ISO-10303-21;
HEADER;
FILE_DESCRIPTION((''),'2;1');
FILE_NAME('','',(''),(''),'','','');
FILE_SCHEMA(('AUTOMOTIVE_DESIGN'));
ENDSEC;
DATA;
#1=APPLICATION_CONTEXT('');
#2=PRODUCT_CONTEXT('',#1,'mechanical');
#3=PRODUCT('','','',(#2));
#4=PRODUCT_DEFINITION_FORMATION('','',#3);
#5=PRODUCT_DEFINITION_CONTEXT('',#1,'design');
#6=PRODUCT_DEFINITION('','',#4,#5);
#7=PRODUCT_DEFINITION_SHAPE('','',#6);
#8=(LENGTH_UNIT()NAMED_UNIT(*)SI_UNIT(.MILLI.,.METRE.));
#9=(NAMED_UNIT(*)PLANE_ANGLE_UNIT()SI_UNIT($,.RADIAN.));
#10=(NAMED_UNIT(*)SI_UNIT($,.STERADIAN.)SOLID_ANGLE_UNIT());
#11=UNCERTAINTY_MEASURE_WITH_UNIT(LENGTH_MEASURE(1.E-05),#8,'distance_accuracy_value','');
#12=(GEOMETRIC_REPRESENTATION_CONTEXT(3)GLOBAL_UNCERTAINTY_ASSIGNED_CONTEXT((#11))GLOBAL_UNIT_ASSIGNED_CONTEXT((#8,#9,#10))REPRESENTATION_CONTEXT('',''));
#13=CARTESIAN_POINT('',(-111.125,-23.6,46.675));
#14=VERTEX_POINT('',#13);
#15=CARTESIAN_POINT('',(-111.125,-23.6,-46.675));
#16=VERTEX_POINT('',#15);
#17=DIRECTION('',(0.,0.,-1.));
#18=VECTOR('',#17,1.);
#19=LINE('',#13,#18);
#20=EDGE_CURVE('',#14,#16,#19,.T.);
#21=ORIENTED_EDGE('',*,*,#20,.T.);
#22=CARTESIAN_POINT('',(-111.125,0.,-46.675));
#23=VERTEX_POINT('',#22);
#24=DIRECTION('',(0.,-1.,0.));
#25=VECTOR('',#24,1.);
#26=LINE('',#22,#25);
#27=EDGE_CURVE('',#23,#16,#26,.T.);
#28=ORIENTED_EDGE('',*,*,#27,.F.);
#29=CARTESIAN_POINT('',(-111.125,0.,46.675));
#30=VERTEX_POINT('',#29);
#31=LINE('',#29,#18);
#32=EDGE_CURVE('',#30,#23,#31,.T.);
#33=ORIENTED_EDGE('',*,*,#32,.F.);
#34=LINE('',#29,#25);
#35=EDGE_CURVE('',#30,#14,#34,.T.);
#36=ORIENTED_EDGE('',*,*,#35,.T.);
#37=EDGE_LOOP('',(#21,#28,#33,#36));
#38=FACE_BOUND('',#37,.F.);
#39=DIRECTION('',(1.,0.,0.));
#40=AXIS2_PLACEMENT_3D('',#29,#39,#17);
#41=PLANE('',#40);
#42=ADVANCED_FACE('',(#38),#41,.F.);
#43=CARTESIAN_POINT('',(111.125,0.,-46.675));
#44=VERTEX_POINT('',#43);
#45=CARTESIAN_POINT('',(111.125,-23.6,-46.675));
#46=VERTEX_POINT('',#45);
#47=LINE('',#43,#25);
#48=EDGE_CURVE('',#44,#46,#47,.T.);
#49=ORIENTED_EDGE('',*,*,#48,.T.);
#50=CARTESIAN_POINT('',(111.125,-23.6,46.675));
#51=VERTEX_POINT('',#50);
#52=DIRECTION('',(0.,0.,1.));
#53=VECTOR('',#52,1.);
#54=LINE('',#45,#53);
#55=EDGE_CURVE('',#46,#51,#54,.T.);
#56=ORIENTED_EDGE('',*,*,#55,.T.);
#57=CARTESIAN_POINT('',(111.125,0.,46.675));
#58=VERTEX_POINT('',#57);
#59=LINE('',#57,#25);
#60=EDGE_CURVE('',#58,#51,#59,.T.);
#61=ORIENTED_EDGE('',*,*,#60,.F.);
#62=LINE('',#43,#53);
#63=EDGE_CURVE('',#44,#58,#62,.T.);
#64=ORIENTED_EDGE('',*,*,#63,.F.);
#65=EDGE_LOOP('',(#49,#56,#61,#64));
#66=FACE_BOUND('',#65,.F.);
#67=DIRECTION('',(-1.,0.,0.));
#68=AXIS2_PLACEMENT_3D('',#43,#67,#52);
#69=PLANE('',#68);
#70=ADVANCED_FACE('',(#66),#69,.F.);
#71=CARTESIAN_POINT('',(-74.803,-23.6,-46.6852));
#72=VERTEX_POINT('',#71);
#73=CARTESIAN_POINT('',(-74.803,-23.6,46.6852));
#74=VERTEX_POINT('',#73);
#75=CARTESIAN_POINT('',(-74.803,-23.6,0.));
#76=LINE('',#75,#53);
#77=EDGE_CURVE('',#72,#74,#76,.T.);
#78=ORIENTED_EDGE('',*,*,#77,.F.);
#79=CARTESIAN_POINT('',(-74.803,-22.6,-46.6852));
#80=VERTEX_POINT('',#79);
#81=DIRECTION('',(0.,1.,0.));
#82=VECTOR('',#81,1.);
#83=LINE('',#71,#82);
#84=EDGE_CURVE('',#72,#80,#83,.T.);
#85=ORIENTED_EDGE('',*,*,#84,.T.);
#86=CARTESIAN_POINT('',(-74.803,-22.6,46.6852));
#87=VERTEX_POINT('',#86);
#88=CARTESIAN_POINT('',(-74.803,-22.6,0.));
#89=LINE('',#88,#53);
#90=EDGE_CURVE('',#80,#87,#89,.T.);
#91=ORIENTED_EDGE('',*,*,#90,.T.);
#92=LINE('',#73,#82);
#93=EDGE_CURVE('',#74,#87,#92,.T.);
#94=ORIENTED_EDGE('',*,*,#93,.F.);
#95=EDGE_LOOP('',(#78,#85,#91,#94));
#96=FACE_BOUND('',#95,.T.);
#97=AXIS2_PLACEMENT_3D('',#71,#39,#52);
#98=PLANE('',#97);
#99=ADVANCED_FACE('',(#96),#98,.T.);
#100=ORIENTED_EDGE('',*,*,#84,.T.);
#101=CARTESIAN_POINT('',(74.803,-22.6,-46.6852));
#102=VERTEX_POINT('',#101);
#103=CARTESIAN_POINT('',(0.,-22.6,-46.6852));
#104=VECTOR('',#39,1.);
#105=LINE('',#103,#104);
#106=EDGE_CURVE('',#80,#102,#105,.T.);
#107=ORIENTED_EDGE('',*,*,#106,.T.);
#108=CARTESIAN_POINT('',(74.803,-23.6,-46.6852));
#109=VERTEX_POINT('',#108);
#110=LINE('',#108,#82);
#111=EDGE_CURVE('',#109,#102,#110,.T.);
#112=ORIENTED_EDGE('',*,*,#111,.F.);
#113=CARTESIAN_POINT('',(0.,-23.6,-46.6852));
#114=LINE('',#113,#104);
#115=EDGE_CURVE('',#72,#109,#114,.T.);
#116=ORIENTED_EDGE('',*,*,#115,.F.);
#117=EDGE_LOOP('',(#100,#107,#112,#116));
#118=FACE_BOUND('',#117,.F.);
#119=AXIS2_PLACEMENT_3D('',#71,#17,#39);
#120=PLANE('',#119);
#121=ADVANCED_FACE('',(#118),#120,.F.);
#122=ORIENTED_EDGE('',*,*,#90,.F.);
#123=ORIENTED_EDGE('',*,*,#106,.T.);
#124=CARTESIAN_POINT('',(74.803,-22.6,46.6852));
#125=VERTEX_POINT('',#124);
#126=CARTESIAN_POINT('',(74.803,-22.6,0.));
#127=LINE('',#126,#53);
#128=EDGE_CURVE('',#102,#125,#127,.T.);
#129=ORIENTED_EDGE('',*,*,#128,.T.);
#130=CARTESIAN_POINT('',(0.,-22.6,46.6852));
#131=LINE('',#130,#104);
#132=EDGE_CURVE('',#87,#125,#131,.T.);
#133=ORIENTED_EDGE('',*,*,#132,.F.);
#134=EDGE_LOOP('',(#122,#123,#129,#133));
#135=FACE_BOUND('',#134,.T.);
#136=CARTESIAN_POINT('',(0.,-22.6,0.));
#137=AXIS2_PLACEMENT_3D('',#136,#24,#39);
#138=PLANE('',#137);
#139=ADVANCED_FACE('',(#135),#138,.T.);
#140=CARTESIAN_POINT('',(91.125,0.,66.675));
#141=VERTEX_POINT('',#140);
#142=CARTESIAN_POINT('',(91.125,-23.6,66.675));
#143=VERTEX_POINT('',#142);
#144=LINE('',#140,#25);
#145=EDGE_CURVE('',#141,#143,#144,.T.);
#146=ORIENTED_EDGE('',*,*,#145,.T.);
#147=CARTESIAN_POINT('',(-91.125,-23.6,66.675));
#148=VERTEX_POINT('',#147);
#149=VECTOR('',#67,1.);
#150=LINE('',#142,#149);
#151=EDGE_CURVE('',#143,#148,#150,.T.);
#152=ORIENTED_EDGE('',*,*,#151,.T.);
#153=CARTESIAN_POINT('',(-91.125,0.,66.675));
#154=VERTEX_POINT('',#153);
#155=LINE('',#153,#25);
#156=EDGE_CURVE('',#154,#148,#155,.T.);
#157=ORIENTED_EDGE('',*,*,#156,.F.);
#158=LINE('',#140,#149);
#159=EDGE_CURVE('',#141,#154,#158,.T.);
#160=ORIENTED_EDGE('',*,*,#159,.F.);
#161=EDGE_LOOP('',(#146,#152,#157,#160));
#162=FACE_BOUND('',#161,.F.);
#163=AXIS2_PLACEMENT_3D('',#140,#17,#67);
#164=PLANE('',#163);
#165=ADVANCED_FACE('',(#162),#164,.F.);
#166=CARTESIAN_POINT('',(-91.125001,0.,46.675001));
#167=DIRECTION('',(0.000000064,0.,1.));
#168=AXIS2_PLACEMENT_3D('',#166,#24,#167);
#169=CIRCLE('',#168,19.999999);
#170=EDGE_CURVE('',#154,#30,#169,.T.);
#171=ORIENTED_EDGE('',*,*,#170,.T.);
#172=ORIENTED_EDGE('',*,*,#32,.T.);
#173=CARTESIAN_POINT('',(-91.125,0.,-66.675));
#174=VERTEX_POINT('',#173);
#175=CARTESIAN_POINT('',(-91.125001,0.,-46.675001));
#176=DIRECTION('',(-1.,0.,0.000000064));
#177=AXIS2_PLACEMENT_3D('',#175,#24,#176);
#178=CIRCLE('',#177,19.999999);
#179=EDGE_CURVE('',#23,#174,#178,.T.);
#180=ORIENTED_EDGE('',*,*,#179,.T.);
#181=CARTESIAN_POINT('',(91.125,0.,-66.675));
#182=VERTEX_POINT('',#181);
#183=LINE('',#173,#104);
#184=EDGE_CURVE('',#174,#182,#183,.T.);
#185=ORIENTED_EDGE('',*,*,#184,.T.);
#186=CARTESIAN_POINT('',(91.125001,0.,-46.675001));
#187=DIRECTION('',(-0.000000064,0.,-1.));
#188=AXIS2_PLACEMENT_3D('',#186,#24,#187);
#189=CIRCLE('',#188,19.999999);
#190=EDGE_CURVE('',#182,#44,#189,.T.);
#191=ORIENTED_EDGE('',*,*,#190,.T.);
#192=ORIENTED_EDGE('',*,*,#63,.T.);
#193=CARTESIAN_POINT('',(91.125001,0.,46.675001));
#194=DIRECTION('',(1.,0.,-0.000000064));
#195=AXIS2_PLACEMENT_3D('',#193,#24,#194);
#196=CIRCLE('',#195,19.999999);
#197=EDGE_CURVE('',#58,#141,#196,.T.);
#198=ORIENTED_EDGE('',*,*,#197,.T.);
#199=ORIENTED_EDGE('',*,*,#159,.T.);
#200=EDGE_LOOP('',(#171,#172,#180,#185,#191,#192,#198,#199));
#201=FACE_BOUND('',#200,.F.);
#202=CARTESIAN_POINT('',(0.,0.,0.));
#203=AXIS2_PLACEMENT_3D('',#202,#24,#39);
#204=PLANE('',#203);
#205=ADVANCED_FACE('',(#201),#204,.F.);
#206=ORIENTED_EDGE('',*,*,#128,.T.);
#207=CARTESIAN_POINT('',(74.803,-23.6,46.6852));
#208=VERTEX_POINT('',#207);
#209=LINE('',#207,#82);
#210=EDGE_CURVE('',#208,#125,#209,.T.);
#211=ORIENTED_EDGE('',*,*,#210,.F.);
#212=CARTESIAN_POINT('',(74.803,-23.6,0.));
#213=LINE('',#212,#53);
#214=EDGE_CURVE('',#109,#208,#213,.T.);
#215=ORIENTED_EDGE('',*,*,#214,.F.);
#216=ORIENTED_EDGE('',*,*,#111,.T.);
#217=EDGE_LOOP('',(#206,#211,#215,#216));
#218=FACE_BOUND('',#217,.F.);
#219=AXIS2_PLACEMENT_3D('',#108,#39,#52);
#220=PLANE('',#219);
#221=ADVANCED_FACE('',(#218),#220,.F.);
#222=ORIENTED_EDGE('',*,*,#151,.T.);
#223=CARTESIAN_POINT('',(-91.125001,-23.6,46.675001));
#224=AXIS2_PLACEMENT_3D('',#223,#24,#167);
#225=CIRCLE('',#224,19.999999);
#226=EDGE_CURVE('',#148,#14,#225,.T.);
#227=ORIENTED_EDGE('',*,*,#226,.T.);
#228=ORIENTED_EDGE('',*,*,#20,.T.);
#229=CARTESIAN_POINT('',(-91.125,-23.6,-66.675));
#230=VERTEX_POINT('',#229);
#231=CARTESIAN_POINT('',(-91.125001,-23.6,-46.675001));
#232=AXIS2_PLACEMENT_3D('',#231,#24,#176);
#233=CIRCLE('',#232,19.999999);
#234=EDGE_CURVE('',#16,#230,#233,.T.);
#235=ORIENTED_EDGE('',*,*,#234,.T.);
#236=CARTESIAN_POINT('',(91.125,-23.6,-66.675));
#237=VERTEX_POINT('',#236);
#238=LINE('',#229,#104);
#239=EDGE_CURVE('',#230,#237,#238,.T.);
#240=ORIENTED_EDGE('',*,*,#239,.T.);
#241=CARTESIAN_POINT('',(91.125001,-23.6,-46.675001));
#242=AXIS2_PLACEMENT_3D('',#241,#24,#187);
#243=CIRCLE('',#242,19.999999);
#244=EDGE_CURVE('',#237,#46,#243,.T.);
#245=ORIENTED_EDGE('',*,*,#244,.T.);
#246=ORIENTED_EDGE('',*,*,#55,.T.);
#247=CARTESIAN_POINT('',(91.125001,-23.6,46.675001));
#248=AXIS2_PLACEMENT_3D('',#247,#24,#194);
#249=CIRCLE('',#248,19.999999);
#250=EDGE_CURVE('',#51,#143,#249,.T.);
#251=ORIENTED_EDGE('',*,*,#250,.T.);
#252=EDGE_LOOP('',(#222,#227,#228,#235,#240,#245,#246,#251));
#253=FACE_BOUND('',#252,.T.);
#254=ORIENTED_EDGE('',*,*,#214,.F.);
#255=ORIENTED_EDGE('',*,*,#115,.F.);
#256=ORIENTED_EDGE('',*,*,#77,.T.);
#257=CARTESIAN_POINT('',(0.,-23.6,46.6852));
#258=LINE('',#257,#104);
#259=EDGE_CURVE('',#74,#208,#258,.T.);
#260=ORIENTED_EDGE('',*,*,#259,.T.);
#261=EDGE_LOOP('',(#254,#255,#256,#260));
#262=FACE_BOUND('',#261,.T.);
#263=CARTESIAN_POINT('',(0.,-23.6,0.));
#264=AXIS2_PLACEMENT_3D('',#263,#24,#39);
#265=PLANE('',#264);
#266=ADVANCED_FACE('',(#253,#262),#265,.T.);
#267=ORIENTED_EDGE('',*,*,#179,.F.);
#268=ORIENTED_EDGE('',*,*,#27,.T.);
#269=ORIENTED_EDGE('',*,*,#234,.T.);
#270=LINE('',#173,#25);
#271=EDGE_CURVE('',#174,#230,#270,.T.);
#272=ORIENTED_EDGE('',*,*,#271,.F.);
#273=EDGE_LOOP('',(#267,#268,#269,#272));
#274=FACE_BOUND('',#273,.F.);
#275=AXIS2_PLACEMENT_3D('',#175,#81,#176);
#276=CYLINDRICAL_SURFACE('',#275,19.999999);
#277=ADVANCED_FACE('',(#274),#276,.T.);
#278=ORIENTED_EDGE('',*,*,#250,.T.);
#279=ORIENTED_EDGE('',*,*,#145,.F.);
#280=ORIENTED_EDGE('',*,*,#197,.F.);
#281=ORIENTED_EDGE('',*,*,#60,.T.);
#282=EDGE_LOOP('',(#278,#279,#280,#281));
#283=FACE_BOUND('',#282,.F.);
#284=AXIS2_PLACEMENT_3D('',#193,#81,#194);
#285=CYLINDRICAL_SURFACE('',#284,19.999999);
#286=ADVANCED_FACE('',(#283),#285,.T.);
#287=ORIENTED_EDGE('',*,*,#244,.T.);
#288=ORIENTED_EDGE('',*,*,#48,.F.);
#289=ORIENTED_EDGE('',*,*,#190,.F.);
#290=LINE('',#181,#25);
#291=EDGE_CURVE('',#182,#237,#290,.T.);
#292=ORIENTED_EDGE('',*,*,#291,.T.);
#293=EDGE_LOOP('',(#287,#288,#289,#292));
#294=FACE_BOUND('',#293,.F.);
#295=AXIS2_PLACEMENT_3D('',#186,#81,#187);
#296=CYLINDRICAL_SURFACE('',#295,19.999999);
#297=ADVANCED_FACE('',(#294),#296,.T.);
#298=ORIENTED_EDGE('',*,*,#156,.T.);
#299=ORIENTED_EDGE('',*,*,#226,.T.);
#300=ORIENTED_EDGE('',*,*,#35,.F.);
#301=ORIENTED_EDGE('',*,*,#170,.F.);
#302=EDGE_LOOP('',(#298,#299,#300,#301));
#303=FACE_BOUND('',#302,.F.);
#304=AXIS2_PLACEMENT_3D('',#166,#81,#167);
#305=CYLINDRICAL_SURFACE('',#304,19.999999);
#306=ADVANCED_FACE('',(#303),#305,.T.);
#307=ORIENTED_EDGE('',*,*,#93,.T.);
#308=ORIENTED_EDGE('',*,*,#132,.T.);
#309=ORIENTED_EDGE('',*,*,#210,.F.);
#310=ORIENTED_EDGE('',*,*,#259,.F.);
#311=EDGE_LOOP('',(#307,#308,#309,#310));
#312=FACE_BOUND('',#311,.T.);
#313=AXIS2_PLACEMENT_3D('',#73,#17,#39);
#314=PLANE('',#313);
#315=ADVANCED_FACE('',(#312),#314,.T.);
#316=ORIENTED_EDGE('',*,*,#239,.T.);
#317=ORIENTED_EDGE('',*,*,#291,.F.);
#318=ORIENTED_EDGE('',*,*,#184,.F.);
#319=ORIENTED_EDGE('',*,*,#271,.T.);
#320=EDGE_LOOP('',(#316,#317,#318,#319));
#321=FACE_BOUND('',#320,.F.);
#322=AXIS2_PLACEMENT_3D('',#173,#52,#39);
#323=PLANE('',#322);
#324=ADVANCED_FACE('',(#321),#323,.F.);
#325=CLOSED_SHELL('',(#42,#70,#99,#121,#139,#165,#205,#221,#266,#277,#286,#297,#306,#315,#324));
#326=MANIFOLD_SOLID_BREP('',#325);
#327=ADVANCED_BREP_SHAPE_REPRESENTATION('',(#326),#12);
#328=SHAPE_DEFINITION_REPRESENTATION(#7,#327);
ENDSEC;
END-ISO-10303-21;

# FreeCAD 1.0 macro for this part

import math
import FreeCAD as App
import Part
import Sketcher
Q = App.Units.Quantity

doc = App.newDocument("Part")
params = doc.addObject("Spreadsheet::Sheet", "Params")
for row, (alias, value) in enumerate([
    ("sketch1_radius", "19.999999 mm"),
    ("sketch1_width", "182.25 mm"),
    ("sketch1_height", "93.35 mm"),
    ("pad1_length", "23.6 mm"),
    ("pocket1_length", "1 mm"),
], start=1):
    params.set(f"A{row}", alias)
    params.set(f"B{row}", "=" + value)
    params.setAlias(f"B{row}", alias)

body = doc.addObject("PartDesign::Body", "Body")

# Sketch on XZ plane
sketch1 = doc.addObject("Sketcher::SketchObject", "Sketch")
body.addObject(sketch1)
sketch1.AttachmentSupport = (doc.XZ_Plane, [""])
sketch1.MapMode = "FlatFace"
sketch1.addGeometry([
    Part.LineSegment(App.Vector(91, 67, 0), App.Vector(-91, 67, 0)),  # 0
    Part.ArcOfCircle(Part.Circle(App.Vector(-91, 47, 0), App.Vector(0, 0, 1), 20), math.radians(90), math.radians(180)),  # 1
    Part.LineSegment(App.Vector(-111, 47, 0), App.Vector(-111, -47, 0)),  # 2
    Part.ArcOfCircle(Part.Circle(App.Vector(-91, -47, 0), App.Vector(0, 0, 1), 20), math.radians(180), math.radians(270)),  # 3
    Part.LineSegment(App.Vector(-91, -67, 0), App.Vector(91, -67, 0)),  # 4
    Part.ArcOfCircle(Part.Circle(App.Vector(91, -47, 0), App.Vector(0, 0, 1), 20), math.radians(-90), math.radians(0)),  # 5
    Part.LineSegment(App.Vector(111, -47, 0), App.Vector(111, 47, 0)),  # 6
    Part.ArcOfCircle(Part.Circle(App.Vector(91, 47, 0), App.Vector(0, 0, 1), 20), math.radians(0), math.radians(90)),  # 7
], False)
sketch1.addConstraint([
    Sketcher.Constraint("Tangent", 0, 2, 1, 1),
    Sketcher.Constraint("Tangent", 1, 2, 2, 1),
    Sketcher.Constraint("Tangent", 2, 2, 3, 1),
    Sketcher.Constraint("Tangent", 3, 2, 4, 1),
    Sketcher.Constraint("Tangent", 4, 2, 5, 1),
    Sketcher.Constraint("Tangent", 5, 2, 6, 1),
    Sketcher.Constraint("Tangent", 6, 2, 7, 1),
    Sketcher.Constraint("Tangent", 7, 2, 0, 1),
    Sketcher.Constraint("Horizontal", 0),
    Sketcher.Constraint("Vertical", 2),
    Sketcher.Constraint("Horizontal", 4),
    Sketcher.Constraint("Vertical", 6),
    Sketcher.Constraint("Equal", 1, 3),
    Sketcher.Constraint("Equal", 3, 5),
    Sketcher.Constraint("Equal", 5, 7),
    Sketcher.Constraint("Symmetric", 1, 3, 5, 3, -1, 1),
    Sketcher.Constraint("Radius", 1, Q("19.999999 mm")),
    Sketcher.Constraint("DistanceX", 0, 2, 0, 1, Q("182.25 mm")),
    Sketcher.Constraint("DistanceY", 2, 2, 2, 1, Q("93.35 mm")),
])
sketch1.setExpression("Constraints[16]", "Params.sketch1_radius")
sketch1.setExpression("Constraints[17]", "Params.sketch1_width")
sketch1.setExpression("Constraints[18]", "Params.sketch1_height")
pad1 = doc.addObject("PartDesign::Pad", "Pad")
body.addObject(pad1)
pad1.Profile = sketch1
pad1.setExpression("Length", "Params.pad1_length")

# Sketch on XZ plane
sketch2 = doc.addObject("Sketcher::SketchObject", "Sketch001")
body.addObject(sketch2)
sketch2.AttachmentSupport = (doc.XZ_Plane, [""])
sketch2.MapMode = "FlatFace"
sketch2.AttachmentOffset = App.Placement(App.Vector(0, 0, 23.6), App.Rotation())
sketch2.addGeometry([
    Part.LineSegment(App.Vector(-75, 47, 0), App.Vector(-75, -47, 0)),
    Part.LineSegment(App.Vector(-75, -47, 0), App.Vector(75, -47, 0)),
    Part.LineSegment(App.Vector(75, -47, 0), App.Vector(75, 47, 0)),
    Part.LineSegment(App.Vector(75, 47, 0), App.Vector(-75, 47, 0)),
], False)
sketch2.addConstraint([
    Sketcher.Constraint("Coincident", 0, 2, 1, 1),
    Sketcher.Constraint("Coincident", 1, 2, 2, 1),
    Sketcher.Constraint("Coincident", 2, 2, 3, 1),
    Sketcher.Constraint("Coincident", 3, 2, 0, 1),
    Sketcher.Constraint("Vertical", 0),
    Sketcher.Constraint("Horizontal", 1),
    Sketcher.Constraint("Vertical", 2),
    Sketcher.Constraint("Horizontal", 3),
    Sketcher.Constraint("Symmetric", 0, 2, 2, 2, -1, 1),
    Sketcher.Constraint("DistanceX", 1, 1, 1, 2, Q("149.606 mm")),
    Sketcher.Constraint("DistanceY", 0, 2, 0, 1, Q("93.3704 mm")),
])
pocket1 = doc.addObject("PartDesign::Pocket", "Pocket")
body.addObject(pocket1)
pocket1.Profile = sketch2
pocket1.setExpression("Length", "Params.pocket1_length")

doc.recompute()
